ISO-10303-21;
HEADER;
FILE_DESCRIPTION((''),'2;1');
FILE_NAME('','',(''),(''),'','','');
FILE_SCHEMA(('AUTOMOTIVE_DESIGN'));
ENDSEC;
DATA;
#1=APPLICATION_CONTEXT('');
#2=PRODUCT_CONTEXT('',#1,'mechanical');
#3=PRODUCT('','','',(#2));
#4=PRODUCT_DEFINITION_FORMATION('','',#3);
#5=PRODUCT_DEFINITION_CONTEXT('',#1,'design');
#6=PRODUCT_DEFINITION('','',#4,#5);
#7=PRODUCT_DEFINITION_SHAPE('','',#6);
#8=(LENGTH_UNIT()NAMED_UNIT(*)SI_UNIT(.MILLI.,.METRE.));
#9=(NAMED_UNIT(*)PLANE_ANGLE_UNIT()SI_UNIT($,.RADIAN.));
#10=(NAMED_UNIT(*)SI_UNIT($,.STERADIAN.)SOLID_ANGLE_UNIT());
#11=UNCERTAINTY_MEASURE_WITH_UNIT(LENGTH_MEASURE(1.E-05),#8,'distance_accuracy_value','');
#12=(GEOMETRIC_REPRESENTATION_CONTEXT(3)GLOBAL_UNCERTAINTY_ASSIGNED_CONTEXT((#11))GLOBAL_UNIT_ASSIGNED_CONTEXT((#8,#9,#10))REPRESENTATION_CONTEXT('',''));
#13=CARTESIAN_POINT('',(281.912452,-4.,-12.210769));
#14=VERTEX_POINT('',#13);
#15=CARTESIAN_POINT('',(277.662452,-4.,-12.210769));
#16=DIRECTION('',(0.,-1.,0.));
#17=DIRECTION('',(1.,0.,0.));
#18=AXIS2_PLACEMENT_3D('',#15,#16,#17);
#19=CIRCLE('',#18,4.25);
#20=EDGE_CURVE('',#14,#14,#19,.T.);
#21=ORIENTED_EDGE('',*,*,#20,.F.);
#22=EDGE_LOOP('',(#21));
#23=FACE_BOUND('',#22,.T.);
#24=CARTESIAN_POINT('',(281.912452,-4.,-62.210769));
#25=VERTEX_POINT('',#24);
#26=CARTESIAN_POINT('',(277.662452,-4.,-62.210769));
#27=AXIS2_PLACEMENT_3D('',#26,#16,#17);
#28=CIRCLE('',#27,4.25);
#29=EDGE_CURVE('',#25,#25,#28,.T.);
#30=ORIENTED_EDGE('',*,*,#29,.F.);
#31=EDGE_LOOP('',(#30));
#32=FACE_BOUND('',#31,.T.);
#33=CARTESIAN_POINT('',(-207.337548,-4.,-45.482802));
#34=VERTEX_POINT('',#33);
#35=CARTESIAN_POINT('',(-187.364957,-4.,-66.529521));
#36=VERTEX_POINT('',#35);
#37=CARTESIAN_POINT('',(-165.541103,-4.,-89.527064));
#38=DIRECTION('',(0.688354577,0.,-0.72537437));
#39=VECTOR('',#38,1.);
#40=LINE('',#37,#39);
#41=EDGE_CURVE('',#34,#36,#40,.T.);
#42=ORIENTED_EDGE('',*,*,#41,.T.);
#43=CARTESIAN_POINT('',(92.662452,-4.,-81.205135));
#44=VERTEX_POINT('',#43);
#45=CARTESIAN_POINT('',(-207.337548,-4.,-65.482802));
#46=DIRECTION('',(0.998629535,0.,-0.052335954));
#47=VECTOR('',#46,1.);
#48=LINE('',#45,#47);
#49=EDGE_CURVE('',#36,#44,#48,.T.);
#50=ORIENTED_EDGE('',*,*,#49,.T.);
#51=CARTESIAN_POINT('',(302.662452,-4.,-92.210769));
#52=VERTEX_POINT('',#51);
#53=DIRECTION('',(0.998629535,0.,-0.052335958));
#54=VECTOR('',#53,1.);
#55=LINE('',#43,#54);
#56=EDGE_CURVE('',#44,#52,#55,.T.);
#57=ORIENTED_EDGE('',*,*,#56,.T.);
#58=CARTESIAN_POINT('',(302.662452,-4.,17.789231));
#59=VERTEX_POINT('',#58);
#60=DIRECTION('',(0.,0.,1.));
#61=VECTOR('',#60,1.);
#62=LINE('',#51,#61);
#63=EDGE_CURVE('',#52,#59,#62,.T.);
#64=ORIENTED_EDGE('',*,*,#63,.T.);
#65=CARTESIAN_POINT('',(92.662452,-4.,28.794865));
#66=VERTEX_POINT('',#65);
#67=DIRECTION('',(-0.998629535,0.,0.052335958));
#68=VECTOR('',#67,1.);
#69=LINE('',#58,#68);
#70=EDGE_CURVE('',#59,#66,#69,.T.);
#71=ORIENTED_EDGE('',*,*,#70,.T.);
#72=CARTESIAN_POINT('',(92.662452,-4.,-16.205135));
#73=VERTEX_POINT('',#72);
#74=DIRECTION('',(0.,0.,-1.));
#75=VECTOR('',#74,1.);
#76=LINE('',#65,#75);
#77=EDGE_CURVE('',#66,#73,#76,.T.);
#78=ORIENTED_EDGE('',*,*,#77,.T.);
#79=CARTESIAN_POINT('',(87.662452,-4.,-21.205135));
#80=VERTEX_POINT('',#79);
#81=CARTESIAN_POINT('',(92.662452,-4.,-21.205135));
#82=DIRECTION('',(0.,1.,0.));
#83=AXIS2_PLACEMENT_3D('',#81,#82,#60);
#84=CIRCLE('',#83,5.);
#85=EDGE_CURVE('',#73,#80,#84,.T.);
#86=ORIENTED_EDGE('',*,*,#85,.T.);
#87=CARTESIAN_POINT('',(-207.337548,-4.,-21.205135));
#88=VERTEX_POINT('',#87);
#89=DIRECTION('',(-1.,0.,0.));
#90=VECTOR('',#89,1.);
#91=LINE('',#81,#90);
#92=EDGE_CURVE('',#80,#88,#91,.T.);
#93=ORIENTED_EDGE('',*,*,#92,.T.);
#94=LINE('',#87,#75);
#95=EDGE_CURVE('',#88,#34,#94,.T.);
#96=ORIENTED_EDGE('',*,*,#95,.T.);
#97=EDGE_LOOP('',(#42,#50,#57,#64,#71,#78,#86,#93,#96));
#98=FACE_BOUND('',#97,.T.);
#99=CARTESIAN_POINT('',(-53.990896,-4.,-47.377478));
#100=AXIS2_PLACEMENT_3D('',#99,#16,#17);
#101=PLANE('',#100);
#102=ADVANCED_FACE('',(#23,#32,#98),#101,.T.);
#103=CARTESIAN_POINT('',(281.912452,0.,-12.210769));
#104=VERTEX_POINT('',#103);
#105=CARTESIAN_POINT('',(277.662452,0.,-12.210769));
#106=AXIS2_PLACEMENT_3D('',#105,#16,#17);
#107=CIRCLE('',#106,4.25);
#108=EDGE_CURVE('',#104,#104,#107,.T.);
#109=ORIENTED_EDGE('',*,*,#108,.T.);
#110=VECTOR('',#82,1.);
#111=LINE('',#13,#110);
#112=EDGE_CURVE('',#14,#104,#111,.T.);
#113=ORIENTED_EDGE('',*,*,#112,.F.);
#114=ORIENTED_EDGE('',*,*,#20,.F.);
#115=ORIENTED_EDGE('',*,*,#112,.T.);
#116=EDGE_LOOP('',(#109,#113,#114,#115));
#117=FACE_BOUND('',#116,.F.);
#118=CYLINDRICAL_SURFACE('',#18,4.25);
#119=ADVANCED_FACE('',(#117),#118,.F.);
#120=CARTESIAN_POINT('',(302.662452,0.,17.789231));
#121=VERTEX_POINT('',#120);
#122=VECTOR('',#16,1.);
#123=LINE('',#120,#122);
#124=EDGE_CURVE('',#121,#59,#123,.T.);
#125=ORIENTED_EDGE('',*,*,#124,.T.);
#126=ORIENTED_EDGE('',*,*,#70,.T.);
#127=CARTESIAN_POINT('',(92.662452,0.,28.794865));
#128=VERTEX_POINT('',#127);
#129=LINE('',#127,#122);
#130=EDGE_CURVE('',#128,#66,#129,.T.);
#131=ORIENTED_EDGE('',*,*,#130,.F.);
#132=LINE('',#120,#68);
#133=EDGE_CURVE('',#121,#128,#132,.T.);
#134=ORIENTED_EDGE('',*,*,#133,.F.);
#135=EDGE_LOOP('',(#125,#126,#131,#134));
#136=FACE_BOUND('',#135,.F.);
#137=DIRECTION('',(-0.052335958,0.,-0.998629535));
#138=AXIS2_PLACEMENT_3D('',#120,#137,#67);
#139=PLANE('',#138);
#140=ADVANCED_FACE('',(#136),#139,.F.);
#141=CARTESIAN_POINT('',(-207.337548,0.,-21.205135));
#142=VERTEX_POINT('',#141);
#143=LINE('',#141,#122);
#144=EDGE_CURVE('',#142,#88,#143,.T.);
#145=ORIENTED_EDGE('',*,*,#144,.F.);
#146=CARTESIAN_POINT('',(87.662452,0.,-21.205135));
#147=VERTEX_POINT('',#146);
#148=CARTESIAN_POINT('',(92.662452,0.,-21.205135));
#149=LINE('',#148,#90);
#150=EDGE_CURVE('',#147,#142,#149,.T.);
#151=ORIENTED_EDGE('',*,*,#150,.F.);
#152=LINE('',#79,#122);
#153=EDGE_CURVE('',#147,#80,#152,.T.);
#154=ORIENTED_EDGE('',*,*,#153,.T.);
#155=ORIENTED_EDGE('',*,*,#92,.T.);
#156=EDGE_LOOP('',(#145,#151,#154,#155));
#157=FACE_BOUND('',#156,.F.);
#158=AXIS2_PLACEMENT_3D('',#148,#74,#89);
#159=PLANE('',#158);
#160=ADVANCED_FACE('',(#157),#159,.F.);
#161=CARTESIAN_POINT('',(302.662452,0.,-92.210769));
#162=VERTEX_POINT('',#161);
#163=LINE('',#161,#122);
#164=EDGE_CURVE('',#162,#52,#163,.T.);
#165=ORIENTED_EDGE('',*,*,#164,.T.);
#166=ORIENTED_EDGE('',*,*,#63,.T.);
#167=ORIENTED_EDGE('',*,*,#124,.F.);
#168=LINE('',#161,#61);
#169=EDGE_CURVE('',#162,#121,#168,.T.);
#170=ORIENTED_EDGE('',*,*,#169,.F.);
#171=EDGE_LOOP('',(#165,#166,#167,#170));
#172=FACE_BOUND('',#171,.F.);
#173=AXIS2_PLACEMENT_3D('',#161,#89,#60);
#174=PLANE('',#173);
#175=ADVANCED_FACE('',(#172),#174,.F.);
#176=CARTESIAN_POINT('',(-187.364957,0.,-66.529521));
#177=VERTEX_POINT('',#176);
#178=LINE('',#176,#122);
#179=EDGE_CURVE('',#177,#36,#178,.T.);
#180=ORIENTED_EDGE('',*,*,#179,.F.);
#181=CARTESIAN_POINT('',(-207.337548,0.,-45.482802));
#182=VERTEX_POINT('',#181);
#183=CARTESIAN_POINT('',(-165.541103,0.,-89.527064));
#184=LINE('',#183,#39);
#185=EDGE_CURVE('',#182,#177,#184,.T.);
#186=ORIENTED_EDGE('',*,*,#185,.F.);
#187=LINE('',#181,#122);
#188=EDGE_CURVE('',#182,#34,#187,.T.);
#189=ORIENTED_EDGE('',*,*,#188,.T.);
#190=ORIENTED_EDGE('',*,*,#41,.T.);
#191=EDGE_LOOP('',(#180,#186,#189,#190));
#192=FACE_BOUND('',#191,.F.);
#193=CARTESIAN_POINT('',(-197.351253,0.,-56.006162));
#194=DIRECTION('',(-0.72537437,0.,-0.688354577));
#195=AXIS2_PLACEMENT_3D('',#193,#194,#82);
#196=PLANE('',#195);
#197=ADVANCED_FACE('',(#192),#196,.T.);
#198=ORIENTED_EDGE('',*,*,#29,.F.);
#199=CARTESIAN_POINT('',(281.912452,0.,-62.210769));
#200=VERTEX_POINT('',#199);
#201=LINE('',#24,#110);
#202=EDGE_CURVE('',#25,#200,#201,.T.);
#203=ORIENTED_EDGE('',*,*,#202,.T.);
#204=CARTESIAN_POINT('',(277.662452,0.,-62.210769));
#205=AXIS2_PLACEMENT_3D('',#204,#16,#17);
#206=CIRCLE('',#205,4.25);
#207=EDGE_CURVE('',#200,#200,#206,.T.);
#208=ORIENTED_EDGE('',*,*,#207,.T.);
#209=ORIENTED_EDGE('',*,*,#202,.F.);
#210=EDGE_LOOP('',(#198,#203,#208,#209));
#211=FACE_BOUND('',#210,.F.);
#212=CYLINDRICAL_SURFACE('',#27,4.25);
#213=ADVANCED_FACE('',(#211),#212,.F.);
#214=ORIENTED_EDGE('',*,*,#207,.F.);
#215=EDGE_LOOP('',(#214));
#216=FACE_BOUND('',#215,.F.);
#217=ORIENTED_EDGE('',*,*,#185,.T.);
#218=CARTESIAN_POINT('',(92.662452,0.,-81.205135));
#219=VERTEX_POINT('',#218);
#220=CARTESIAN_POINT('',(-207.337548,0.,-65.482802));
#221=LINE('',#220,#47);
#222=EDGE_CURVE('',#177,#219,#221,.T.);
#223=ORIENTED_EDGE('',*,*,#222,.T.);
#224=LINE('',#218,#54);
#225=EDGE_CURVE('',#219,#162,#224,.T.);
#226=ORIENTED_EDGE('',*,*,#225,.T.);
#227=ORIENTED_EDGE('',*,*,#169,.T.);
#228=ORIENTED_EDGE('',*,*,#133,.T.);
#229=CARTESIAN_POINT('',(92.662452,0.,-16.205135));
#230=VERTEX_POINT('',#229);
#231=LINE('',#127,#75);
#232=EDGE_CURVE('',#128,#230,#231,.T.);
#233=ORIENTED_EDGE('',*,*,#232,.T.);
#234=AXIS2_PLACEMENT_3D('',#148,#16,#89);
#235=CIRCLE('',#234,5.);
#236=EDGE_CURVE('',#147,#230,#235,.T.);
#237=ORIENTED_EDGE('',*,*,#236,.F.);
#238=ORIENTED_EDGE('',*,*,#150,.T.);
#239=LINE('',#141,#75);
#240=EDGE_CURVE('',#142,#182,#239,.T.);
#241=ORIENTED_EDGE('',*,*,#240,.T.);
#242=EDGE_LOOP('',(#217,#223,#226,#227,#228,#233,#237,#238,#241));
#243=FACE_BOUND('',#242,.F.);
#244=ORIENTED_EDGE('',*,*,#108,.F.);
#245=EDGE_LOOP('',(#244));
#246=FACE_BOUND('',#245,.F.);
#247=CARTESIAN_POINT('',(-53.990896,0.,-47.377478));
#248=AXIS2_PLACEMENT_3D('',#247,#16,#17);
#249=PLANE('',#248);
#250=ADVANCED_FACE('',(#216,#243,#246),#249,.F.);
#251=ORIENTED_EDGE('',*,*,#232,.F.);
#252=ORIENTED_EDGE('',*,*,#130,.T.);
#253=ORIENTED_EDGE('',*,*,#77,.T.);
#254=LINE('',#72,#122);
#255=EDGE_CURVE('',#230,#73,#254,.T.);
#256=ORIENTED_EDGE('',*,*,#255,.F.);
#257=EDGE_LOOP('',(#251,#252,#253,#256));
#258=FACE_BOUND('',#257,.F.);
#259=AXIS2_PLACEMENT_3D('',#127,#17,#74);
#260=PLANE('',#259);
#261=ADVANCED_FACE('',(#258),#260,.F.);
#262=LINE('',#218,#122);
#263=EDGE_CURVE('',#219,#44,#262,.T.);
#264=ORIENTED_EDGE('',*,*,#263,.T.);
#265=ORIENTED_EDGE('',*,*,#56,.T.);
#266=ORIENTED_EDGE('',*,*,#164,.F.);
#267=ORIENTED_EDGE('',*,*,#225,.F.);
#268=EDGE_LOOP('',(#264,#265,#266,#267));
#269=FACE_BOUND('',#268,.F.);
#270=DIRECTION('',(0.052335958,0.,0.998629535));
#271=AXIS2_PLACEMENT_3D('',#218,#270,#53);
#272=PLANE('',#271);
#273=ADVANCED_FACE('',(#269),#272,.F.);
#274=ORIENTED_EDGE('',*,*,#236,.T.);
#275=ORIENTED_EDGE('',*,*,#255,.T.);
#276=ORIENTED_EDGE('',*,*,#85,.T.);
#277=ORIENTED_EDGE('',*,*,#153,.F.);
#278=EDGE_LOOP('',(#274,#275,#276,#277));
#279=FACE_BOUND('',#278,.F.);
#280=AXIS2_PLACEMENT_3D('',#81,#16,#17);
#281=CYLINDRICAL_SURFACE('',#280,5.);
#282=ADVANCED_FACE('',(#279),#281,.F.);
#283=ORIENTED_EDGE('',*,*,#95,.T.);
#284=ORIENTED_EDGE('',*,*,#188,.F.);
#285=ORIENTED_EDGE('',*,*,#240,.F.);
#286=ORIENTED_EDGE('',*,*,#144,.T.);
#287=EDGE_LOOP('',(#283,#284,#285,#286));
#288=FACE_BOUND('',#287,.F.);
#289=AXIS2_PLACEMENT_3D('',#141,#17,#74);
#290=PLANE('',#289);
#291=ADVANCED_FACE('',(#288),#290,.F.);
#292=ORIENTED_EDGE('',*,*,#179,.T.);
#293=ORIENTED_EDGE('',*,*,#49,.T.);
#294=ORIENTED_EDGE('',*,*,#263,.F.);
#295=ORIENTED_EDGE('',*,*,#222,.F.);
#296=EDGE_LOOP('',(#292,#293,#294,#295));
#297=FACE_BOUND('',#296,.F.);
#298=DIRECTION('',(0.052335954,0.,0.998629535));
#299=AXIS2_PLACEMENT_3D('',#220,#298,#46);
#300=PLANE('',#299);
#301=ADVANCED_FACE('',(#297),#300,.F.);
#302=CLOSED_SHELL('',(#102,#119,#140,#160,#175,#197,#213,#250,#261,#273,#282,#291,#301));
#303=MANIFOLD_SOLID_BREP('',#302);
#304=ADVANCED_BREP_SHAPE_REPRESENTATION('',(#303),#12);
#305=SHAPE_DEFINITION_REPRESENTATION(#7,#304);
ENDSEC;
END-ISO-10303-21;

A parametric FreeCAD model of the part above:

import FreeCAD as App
import Part
import Sketcher
Q = App.Units.Quantity


def edges_at(feature, points):
    """Names of the edges that pass closest to the given points."""
    edges = feature.Shape.Edges
    near = lambda p: min(range(len(edges)), key=lambda i: edges[i].distToShape(Part.Vertex(*p))[0])
    return sorted({f"Edge{near(p) + 1}" for p in points})


def add_polygon(sketch, points):
    """Adds a closed chain of lines whose ends are joined by coincident constraints."""
    first, n = sketch.GeometryCount, len(points)
    for a, b in zip(points, points[1:] + points[:1]):
        sketch.addGeometry(Part.LineSegment(App.Vector(*a, 0), App.Vector(*b, 0)), False)
    for i in range(n):
        sketch.addConstraint(Sketcher.Constraint("Coincident", first + i, 2, first + (i + 1) % n, 1))

doc = App.newDocument("Part")
body = doc.addObject("PartDesign::Body", "Body")

sketch1 = body.newObject("Sketcher::SketchObject", "Sketch")
sketch1.AttachmentSupport = (doc.getObject("XZ_Plane"), [""])
sketch1.MapMode = "FlatFace"
add_polygon(sketch1, [(93, -21), (-207, -21), (-207, -65), (93, -81), (303, -92), (303, 18), (93, 29)])
sketch1.addConstraint(Sketcher.Constraint("Horizontal", 0))
sketch1.addConstraint(Sketcher.Constraint("Vertical", 1))
sketch1.addConstraint(Sketcher.Constraint("Vertical", 4))
sketch1.addConstraint(Sketcher.Constraint("Vertical", 6))
sketch1.addConstraint(Sketcher.Constraint("Parallel", 2, 3))
sketch1.addConstraint(Sketcher.Constraint("Parallel", 3, 5))
sketch1.addConstraint(Sketcher.Constraint("Vertical", 2, 2, 5, 2))
sketch1.addConstraint(Sketcher.Constraint("DistanceX", 0, 2, 0, 1, Q("300 mm")))
sketch1.addConstraint(Sketcher.Constraint("DistanceY", 4, 1, 4, 2, Q("110 mm")))
sketch1.addConstraint(Sketcher.Constraint("DistanceY", 6, 2, 6, 1, Q("50 mm")))
sketch1.addConstraint(Sketcher.Constraint("Angle", 2, Q("-3 deg")))
sketch1.addConstraint(Sketcher.Constraint("DistanceX", 2, 2, 3, 2, Q("210 mm")))
sketch1.addConstraint(Sketcher.Constraint("DistanceX", 0, 2, -1, 1, Q("207.337548 mm")))
sketch1.addConstraint(Sketcher.Constraint("DistanceY", 3, 2, -1, 1, Q("92.210769 mm")))
pad1 = body.newObject("PartDesign::Pad", "Pad")
pad1.Profile = sketch1
pad1.Length = 4
doc.recompute()

chamfer = body.newObject("PartDesign::Chamfer", "Chamfer")
chamfer.Base = (pad1, edges_at(pad1, [(-207.338, -2, -65.483)]))
chamfer.Size = 20

sketch2 = body.newObject("Sketcher::SketchObject", "Sketch001")
sketch2.AttachmentSupport = (doc.getObject("XZ_Plane"), [""])
sketch2.MapMode = "FlatFace"
sketch2.AttachmentOffset = App.Placement(App.Vector(0, 0, 4), App.Rotation())
sketch2.addGeometry(Part.Circle(App.Vector(93, -21, 0), App.Vector(0, 0, 1), 5), False)
sketch2.addConstraint(Sketcher.Constraint("Diameter", 0, Q("10 mm")))
sketch2.addConstraint(Sketcher.Constraint("DistanceX", -1, 1, 0, 3, Q("92.662452 mm")))
sketch2.addConstraint(Sketcher.Constraint("DistanceY", 0, 3, -1, 1, Q("21.205135 mm")))
pocket1 = body.newObject("PartDesign::Pocket", "Pocket")
pocket1.Profile = sketch2
pocket1.Length = 25

sketch3 = body.newObject("Sketcher::SketchObject", "Sketch002")
sketch3.AttachmentSupport = (doc.getObject("XZ_Plane"), [""])
sketch3.MapMode = "FlatFace"
sketch3.AttachmentOffset = App.Placement(App.Vector(0, 0, 4), App.Rotation())
sketch3.addGeometry(Part.Circle(App.Vector(277.7, -12.2, 0), App.Vector(0, 0, 1), 4.2), False)
sketch3.addGeometry(Part.Circle(App.Vector(277.7, -62.2, 0), App.Vector(0, 0, 1), 4.2), False)
sketch3.addConstraint(Sketcher.Constraint("Equal", 0, 1))
sketch3.addConstraint(Sketcher.Constraint("Vertical", 0, 3, 1, 3))
sketch3.addConstraint(Sketcher.Constraint("Diameter", 0, Q("8.5 mm")))
sketch3.addConstraint(Sketcher.Constraint("DistanceY", 1, 3, 0, 3, Q("50 mm")))
sketch3.addConstraint(Sketcher.Constraint("DistanceX", -1, 1, 0, 3, Q("277.662452 mm")))
sketch3.addConstraint(Sketcher.Constraint("DistanceY", 0, 3, -1, 1, Q("12.210769 mm")))
pocket2 = body.newObject("PartDesign::Pocket", "Pocket001")
pocket2.Profile = sketch3
pocket2.Length = 25

doc.recompute()
